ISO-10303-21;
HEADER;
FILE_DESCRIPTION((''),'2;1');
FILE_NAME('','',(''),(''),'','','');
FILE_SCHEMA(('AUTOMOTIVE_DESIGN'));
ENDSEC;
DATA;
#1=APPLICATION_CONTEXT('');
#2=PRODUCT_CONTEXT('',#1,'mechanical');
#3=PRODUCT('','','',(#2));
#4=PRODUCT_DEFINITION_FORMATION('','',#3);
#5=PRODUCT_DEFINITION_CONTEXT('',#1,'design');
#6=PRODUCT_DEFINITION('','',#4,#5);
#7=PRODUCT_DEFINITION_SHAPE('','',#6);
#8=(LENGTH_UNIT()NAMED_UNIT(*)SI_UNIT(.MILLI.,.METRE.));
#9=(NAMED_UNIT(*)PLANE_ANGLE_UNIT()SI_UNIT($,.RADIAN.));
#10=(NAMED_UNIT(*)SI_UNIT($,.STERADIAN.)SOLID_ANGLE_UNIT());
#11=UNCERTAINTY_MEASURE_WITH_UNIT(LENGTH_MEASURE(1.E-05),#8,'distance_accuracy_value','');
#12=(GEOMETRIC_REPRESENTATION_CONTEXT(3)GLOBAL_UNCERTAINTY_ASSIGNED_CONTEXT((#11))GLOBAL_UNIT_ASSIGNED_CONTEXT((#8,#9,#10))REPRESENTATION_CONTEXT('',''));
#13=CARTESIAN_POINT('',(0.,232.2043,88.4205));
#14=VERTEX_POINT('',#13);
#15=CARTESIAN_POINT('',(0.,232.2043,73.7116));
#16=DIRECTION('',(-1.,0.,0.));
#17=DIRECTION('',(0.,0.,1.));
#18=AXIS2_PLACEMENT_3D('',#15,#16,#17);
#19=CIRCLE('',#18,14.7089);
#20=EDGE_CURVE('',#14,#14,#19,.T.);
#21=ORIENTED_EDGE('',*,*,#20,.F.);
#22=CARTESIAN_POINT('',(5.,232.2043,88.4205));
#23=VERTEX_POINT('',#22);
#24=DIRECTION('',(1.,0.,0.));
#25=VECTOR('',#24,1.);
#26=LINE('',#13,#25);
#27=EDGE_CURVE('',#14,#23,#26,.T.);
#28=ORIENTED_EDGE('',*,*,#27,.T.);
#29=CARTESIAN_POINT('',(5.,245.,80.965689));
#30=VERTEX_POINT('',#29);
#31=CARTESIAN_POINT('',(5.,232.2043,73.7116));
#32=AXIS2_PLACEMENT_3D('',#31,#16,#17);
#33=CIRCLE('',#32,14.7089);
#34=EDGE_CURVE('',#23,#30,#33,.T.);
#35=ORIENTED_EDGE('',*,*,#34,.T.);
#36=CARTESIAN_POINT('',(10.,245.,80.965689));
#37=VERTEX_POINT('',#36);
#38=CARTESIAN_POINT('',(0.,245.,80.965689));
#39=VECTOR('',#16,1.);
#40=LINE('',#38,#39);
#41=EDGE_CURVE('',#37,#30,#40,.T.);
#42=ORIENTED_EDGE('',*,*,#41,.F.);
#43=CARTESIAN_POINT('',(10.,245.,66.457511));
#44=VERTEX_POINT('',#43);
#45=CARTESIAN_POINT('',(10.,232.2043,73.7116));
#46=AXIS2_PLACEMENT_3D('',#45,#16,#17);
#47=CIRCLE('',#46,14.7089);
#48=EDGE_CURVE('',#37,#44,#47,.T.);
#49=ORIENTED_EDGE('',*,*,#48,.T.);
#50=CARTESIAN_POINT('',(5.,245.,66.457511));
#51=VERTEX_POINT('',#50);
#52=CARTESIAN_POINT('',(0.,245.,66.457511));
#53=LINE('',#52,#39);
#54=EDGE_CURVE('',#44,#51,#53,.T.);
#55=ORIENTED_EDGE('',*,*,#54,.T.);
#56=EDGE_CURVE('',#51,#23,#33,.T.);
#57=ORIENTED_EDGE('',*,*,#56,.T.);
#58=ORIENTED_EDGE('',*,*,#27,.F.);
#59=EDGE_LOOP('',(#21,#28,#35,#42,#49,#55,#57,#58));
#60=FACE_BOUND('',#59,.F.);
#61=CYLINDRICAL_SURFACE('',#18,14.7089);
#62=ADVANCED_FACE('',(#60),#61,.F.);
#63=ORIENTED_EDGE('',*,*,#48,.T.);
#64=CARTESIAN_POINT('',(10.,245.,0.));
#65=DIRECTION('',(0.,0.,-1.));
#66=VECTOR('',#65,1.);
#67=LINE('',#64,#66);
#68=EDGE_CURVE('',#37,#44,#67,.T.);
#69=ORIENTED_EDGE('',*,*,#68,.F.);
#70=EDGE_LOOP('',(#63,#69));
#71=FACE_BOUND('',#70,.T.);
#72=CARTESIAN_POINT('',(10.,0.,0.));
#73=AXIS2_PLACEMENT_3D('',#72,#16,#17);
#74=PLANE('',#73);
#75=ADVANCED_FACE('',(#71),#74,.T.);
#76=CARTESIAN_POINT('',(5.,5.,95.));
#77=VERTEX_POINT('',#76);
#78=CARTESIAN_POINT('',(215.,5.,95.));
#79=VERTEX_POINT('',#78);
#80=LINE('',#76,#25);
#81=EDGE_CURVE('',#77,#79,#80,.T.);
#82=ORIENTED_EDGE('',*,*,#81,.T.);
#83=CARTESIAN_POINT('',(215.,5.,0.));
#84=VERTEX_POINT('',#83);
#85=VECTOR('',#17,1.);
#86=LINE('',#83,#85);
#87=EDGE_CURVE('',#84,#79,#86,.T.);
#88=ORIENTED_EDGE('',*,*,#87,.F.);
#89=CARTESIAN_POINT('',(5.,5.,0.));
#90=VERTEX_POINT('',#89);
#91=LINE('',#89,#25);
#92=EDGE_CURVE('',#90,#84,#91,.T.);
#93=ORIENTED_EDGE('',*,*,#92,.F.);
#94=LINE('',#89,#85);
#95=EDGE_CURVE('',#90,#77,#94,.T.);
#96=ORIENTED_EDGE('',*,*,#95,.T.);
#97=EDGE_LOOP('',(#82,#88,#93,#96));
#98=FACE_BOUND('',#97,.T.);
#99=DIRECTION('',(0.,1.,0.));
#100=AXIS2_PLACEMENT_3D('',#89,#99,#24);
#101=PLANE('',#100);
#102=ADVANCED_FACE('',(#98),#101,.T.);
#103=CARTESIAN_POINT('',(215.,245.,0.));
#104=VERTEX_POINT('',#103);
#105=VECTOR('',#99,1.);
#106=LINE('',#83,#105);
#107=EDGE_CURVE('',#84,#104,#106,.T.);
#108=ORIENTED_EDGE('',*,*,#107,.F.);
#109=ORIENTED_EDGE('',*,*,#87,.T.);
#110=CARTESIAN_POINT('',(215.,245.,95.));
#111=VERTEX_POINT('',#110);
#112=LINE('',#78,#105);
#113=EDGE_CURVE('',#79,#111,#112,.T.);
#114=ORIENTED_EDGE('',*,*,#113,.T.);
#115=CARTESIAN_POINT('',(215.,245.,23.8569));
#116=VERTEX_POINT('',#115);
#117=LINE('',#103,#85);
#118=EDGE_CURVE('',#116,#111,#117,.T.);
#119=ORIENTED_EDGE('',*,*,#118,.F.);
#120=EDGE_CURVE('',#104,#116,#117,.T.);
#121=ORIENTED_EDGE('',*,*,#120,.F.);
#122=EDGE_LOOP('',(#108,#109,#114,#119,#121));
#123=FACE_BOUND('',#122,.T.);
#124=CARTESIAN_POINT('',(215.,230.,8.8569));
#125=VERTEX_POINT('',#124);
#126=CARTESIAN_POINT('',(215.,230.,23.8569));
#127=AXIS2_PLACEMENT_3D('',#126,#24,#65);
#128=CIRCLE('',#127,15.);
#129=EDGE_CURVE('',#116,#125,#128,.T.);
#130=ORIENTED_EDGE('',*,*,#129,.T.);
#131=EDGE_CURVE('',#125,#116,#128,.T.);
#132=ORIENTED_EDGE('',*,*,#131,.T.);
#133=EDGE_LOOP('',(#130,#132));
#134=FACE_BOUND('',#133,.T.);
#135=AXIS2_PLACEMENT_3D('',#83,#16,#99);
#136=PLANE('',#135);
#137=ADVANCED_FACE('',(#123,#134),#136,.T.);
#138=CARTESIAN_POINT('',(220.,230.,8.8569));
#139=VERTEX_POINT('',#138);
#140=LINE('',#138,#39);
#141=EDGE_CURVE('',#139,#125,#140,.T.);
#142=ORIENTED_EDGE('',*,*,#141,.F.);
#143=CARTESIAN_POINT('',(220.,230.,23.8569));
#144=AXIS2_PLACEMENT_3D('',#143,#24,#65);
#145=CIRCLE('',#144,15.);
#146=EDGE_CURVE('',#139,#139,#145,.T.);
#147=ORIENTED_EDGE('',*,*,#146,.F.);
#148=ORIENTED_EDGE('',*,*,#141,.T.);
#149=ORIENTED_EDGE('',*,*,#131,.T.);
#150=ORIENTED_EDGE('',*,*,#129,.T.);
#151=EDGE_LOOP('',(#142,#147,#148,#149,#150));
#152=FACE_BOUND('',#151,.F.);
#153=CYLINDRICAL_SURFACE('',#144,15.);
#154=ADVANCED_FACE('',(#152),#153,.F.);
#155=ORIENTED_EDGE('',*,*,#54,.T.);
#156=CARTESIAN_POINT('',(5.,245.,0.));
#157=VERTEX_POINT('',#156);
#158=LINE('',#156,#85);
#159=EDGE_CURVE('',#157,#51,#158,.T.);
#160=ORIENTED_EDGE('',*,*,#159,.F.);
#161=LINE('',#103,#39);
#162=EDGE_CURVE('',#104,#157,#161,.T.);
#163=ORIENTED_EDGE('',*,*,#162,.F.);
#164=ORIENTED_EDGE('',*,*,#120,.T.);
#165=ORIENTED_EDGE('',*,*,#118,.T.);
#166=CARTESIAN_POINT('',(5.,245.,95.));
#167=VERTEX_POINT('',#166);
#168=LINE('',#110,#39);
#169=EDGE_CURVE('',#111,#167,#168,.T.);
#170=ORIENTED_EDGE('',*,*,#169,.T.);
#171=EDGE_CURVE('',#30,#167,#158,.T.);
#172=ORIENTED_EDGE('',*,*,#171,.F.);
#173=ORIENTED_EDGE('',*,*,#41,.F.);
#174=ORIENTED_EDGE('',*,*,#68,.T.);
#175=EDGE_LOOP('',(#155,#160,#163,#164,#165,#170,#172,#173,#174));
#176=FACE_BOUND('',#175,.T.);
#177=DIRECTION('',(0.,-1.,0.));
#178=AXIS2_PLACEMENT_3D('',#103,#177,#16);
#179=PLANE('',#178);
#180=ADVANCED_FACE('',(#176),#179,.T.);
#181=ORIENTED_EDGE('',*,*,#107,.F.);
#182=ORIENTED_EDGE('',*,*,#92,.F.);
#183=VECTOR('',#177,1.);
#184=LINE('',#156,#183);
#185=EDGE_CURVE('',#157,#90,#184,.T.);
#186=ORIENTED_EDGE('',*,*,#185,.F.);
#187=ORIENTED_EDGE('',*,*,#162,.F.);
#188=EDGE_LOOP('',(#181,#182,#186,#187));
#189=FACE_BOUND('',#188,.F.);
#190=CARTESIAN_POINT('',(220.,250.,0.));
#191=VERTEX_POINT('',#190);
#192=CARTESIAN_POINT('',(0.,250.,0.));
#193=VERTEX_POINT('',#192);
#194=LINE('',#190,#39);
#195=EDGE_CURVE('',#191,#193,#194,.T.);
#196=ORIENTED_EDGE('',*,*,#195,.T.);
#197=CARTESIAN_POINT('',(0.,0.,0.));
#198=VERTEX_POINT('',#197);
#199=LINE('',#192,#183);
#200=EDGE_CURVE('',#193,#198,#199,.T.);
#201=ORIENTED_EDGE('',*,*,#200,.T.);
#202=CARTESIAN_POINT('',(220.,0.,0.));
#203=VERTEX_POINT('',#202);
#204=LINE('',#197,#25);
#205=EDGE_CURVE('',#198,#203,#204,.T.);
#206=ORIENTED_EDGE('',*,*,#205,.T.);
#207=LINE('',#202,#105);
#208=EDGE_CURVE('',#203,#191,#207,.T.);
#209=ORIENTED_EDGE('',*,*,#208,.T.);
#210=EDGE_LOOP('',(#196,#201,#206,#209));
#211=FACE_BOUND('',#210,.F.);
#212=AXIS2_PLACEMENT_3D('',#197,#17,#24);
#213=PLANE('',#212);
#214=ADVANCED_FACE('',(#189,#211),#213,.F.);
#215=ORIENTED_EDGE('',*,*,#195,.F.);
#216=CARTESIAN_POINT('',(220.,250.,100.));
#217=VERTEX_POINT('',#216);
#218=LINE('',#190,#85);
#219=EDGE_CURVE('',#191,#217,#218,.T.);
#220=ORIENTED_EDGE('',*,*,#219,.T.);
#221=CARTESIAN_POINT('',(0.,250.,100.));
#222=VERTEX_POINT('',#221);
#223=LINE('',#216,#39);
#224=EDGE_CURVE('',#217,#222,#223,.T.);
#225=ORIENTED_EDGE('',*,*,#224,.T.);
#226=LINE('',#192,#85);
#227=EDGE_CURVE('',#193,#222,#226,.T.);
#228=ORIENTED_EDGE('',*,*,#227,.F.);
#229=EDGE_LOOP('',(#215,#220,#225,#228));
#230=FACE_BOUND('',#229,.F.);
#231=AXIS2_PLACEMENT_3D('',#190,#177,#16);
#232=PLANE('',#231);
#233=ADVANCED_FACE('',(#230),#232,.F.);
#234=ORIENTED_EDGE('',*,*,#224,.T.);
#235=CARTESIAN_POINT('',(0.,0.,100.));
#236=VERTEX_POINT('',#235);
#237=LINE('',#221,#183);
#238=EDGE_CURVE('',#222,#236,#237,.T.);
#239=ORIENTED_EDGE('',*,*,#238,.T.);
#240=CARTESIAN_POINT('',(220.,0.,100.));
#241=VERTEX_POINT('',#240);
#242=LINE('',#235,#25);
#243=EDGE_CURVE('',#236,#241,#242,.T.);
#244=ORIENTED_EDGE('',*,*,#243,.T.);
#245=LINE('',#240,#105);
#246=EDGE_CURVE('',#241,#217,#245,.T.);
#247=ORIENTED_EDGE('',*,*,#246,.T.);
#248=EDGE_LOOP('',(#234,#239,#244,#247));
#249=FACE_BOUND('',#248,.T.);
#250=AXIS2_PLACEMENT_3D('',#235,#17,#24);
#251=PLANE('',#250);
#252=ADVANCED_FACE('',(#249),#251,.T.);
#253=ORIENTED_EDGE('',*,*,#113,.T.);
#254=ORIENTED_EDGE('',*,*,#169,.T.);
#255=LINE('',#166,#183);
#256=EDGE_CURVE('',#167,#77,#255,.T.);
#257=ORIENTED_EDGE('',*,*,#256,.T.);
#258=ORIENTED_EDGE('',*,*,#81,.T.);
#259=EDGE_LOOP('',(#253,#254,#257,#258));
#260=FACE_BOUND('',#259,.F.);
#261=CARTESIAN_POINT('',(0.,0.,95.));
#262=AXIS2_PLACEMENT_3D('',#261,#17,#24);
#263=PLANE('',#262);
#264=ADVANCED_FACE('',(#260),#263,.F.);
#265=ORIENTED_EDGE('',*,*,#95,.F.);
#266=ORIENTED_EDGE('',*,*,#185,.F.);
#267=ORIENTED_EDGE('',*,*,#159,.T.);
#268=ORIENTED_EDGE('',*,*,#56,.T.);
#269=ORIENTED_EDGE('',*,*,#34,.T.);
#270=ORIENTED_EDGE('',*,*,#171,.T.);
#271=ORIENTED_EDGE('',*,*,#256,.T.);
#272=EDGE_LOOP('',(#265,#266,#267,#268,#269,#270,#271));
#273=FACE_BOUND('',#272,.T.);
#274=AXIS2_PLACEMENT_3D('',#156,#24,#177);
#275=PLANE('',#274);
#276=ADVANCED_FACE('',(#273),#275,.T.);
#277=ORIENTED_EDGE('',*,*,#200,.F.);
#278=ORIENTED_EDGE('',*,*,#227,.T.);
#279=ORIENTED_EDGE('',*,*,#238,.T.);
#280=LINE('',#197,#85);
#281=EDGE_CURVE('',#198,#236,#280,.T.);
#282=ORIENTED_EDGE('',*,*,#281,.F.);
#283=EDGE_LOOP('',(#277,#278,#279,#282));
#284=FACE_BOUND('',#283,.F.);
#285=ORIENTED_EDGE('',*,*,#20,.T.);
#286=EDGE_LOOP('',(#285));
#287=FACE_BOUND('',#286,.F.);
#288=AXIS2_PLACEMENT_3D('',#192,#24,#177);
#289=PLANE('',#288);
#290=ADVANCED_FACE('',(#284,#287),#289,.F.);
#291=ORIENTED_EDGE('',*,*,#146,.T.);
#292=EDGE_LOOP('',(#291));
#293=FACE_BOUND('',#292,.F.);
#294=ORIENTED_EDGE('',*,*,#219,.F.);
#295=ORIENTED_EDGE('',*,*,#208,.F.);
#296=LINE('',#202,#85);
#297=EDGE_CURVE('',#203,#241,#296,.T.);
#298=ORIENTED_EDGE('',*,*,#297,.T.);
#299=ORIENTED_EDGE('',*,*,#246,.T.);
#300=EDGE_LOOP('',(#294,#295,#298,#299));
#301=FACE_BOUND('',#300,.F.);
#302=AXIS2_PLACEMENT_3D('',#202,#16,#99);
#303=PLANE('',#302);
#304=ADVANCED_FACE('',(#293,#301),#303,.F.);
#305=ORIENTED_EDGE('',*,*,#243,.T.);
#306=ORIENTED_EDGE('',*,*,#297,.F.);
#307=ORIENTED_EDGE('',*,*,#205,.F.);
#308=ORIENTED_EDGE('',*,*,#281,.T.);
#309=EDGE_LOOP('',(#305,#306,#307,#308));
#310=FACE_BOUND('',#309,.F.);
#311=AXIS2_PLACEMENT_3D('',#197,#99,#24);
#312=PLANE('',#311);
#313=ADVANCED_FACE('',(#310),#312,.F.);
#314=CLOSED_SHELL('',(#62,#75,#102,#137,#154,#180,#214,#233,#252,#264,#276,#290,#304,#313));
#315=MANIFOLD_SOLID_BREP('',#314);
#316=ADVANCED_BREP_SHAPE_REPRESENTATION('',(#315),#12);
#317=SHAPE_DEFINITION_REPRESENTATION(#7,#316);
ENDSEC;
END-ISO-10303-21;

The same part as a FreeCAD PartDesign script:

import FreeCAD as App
import Part
import Sketcher

V = App.Vector
Q = App.Units.Quantity


def add_polygon(sketch, points):
    """Adds a closed chain of lines whose ends are joined by coincident constraints."""
    first, n = sketch.GeometryCount, len(points)
    for a, b in zip(points, points[1:] + points[:1]):
        sketch.addGeometry(Part.LineSegment(App.Vector(*a, 0), App.Vector(*b, 0)), False)
    for i in range(n):
        sketch.addConstraint(Sketcher.Constraint("Coincident", first + i, 2, first + (i + 1) % n, 1))

doc = App.newDocument("Part")
body = doc.addObject("PartDesign::Body", "Body")

sketch1 = body.newObject("Sketcher::SketchObject", "Sketch")
sketch1.AttachmentSupport = (doc.getObject("XY_Plane"), [""])
sketch1.MapMode = "FlatFace"
add_polygon(sketch1, [(0, 250), (0, 0), (220, 0), (220, 250)])
sketch1.addConstraint([
    Sketcher.Constraint("Vertical", 0),
    Sketcher.Constraint("Horizontal", 1),
    Sketcher.Constraint("Vertical", 2),
    Sketcher.Constraint("Horizontal", 3),
    Sketcher.Constraint("Coincident", 0, 2, -1, 1),
    Sketcher.Constraint("DistanceX", 1, 1, 1, 2, Q("220 mm")),
    Sketcher.Constraint("DistanceY", 0, 2, 0, 1, Q("250 mm")),
])
pad1 = body.newObject("PartDesign::Pad", "Pad")
pad1.Profile = sketch1
pad1.Length = 100

sketch2 = body.newObject("Sketcher::SketchObject", "Sketch001")
sketch2.AttachmentSupport = (doc.getObject("XY_Plane"), [""])
sketch2.MapMode = "FlatFace"
add_polygon(sketch2, [(5, 245), (5, 5), (215, 5), (215, 245)])
sketch2.addConstraint([
    Sketcher.Constraint("Vertical", 0),
    Sketcher.Constraint("Horizontal", 1),
    Sketcher.Constraint("Vertical", 2),
    Sketcher.Constraint("Horizontal", 3),
    Sketcher.Constraint("DistanceX", 1, 1, 1, 2, Q("210 mm")),
    Sketcher.Constraint("DistanceY", 0, 2, 0, 1, Q("240 mm")),
    Sketcher.Constraint("DistanceX", -1, 1, 0, 2, Q("5 mm")),
    Sketcher.Constraint("DistanceY", -1, 1, 0, 2, Q("5 mm")),
])
pocket1 = body.newObject("PartDesign::Pocket", "Pocket")
pocket1.Profile = sketch2
pocket1.Length = 95
pocket1.Reversed = True

sketch3 = body.newObject("Sketcher::SketchObject", "Sketch002")
sketch3.AttachmentSupport = (doc.getObject("YZ_Plane"), [""])
sketch3.MapMode = "FlatFace"
sketch3.AttachmentOffset = App.Placement(V(0, 0, 220), App.Rotation())
sketch3.addGeometry(Part.Circle(V(230, 23.8569, 0), V(0, 0, 1), 15), False)
sketch3.addConstraint([
    Sketcher.Constraint("Diameter", 0, Q("30 mm")),
    Sketcher.Constraint("DistanceX", -1, 1, 0, 3, Q("230 mm")),
    Sketcher.Constraint("DistanceY", -1, 1, 0, 3, Q("23.857 mm")),
])
pocket2 = body.newObject("PartDesign::Pocket", "Pocket001")
pocket2.Profile = sketch3
pocket2.Length = 45

sketch4 = body.newObject("Sketcher::SketchObject", "Sketch003")
sketch4.AttachmentSupport = (doc.getObject("YZ_Plane"), [""])
sketch4.MapMode = "FlatFace"
sketch4.addGeometry(Part.Circle(V(232.2043, 73.7116, 0), V(0, 0, 1), 14.7089), False)
sketch4.addConstraint([
    Sketcher.Constraint("Diameter", 0, Q("29.4178 mm")),
    Sketcher.Constraint("DistanceX", -1, 1, 0, 3, Q("232.2043 mm")),
    Sketcher.Constraint("DistanceY", -1, 1, 0, 3, Q("73.7116 mm")),
])
pocket3 = body.newObject("PartDesign::Pocket", "Pocket002")
pocket3.Profile = sketch4
pocket3.Length = 10
pocket3.Reversed = True

doc.recompute()
